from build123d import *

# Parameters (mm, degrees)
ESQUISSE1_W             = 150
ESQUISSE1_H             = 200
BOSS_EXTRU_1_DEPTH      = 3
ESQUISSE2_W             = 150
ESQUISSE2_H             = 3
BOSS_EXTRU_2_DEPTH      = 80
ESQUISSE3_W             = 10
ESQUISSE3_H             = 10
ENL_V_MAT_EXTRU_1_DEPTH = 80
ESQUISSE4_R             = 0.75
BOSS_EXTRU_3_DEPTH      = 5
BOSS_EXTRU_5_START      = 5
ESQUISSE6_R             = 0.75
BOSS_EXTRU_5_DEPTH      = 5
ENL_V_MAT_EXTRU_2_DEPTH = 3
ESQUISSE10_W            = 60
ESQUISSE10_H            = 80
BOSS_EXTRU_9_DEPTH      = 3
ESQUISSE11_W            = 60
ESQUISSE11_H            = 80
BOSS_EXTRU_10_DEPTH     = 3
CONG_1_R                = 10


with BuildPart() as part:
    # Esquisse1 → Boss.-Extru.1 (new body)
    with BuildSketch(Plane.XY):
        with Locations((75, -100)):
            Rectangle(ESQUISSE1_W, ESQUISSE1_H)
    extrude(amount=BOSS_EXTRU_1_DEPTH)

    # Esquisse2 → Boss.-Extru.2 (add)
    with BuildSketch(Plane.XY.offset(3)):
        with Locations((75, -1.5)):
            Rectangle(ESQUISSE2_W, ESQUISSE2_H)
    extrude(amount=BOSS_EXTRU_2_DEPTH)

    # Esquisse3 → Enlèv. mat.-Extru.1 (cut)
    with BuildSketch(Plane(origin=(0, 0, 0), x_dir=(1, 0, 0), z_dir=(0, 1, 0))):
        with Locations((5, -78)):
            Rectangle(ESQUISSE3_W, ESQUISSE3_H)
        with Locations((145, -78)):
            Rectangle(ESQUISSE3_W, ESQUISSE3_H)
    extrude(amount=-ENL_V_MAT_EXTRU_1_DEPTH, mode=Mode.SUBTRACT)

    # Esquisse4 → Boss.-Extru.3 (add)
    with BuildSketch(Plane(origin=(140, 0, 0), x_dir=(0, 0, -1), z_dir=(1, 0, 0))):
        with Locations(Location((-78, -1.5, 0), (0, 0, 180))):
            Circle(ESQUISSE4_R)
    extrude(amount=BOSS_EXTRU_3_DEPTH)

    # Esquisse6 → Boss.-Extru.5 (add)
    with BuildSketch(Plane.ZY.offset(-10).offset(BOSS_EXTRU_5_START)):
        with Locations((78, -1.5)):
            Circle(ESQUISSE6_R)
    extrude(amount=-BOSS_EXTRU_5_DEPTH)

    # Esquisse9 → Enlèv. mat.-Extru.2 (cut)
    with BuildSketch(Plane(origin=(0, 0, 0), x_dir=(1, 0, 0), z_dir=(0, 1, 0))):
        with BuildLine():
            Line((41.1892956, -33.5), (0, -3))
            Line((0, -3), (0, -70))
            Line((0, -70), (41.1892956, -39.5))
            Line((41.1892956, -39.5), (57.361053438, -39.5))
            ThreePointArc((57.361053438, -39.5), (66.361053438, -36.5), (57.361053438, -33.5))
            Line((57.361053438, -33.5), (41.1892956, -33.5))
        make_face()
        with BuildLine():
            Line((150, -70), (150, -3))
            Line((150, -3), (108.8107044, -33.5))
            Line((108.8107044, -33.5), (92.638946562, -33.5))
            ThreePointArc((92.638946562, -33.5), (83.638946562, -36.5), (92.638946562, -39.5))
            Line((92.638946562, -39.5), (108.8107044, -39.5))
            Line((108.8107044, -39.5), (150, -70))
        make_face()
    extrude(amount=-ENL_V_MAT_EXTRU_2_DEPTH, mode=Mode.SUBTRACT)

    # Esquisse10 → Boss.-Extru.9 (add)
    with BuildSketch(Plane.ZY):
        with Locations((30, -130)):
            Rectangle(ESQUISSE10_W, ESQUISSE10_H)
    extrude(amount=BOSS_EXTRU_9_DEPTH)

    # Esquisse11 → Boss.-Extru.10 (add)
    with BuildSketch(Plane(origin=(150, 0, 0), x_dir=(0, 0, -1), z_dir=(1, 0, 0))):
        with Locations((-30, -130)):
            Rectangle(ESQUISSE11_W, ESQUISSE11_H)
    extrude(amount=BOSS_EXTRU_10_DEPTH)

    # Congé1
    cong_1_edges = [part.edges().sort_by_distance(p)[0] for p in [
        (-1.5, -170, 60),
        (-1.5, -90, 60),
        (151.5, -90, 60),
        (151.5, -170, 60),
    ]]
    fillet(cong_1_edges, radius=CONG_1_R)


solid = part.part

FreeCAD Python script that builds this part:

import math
import FreeCAD as App
import Part
import Sketcher
from FreeCAD import Vector
Q = App.Units.Quantity


def edges_at(feature, points):
    """Names of the edges that pass closest to the given points."""
    edges = feature.Shape.Edges
    near = lambda p: min(range(len(edges)), key=lambda i: edges[i].distToShape(Part.Vertex(*p))[0])
    return sorted({f"Edge{near(p) + 1}" for p in points})

doc = App.newDocument("Part")
params = doc.addObject("Spreadsheet::Sheet", "Params")
for row, (alias, value) in enumerate([
    ("sketch1_width", "150 mm"),
    ("sketch1_height", "200 mm"),
    ("pad1_length", "3 mm"),
    ("sketch2_width", "150 mm"),
    ("sketch2_height", "3 mm"),
    ("pad2_length", "80 mm"),
    ("sketch3_width", "10 mm"),
    ("pocket1_length", "80 mm"),
    ("sketch4_diameter", "1.5 mm"),
    ("pad3_length", "5 mm"),
    ("sketch5_diameter", "1.5 mm"),
    ("pad4_length", "5 mm"),
    ("sketch6_radius", "5 mm"),
    ("sketch6_height", "67 mm"),
    ("pocket2_length", "3 mm"),
    ("sketch7_width", "80 mm"),
    ("sketch7_height", "60 mm"),
    ("pad5_length", "3 mm"),
    ("sketch8_width", "80 mm"),
    ("sketch8_height", "60 mm"),
    ("pad6_length", "3 mm"),
    ("fillet_radius", "10 mm"),
], start=1):
    params.set(f"A{row}", alias)
    params.set(f"B{row}", "=" + value)
    params.setAlias(f"B{row}", alias)

body = doc.addObject("PartDesign::Body", "Body")

# Sketch on XY plane
sketch1 = doc.addObject("Sketcher::SketchObject", "Sketch")
body.addObject(sketch1)
sketch1.AttachmentSupport = (doc.XY_Plane, [""])
sketch1.MapMode = "FlatFace"
sketch1.addGeometry(Part.LineSegment(Vector(0, 0, 0), Vector(0, -200, 0)), False)
sketch1.addGeometry(Part.LineSegment(Vector(0, -200, 0), Vector(150, -200, 0)), False)
sketch1.addGeometry(Part.LineSegment(Vector(150, -200, 0), Vector(150, 0, 0)), False)
sketch1.addGeometry(Part.LineSegment(Vector(150, 0, 0), Vector(0, 0, 0)), False)
sketch1.addConstraint(Sketcher.Constraint("Coincident", 0, 2, 1, 1))
sketch1.addConstraint(Sketcher.Constraint("Coincident", 1, 2, 2, 1))
sketch1.addConstraint(Sketcher.Constraint("Coincident", 2, 2, 3, 1))
sketch1.addConstraint(Sketcher.Constraint("Coincident", 3, 2, 0, 1))
sketch1.addConstraint(Sketcher.Constraint("Vertical", 0))
sketch1.addConstraint(Sketcher.Constraint("Horizontal", 1))
sketch1.addConstraint(Sketcher.Constraint("Vertical", 2))
sketch1.addConstraint(Sketcher.Constraint("Horizontal", 3))
sketch1.addConstraint(Sketcher.Constraint("Coincident", 3, 2, -1, 1))
sketch1.addConstraint(Sketcher.Constraint("DistanceX", 1, 1, 1, 2, Q("150 mm")))
sketch1.addConstraint(Sketcher.Constraint("DistanceY", 0, 2, 0, 1, Q("200 mm")))
sketch1.setExpression("Constraints[9]", "Params.sketch1_width")
sketch1.setExpression("Constraints[10]", "Params.sketch1_height")
pad1 = doc.addObject("PartDesign::Pad", "Pad")
body.addObject(pad1)
pad1.Profile = sketch1
pad1.setExpression("Length", "Params.pad1_length")

# Sketch on XY plane
sketch2 = doc.addObject("Sketcher::SketchObject", "Sketch001")
body.addObject(sketch2)
sketch2.AttachmentSupport = (doc.XY_Plane, [""])
sketch2.MapMode = "FlatFace"
sketch2.AttachmentOffset = App.Placement(Vector(0, 0, 3), App.Rotation())
sketch2.addGeometry(Part.LineSegment(Vector(0, 0, 0), Vector(0, -3, 0)), False)
sketch2.addGeometry(Part.LineSegment(Vector(0, -3, 0), Vector(150, -3, 0)), False)
sketch2.addGeometry(Part.LineSegment(Vector(150, -3, 0), Vector(150, 0, 0)), False)
sketch2.addGeometry(Part.LineSegment(Vector(150, 0, 0), Vector(0, 0, 0)), False)
sketch2.addConstraint(Sketcher.Constraint("Coincident", 0, 2, 1, 1))
sketch2.addConstraint(Sketcher.Constraint("Coincident", 1, 2, 2, 1))
sketch2.addConstraint(Sketcher.Constraint("Coincident", 2, 2, 3, 1))
sketch2.addConstraint(Sketcher.Constraint("Coincident", 3, 2, 0, 1))
sketch2.addConstraint(Sketcher.Constraint("Vertical", 0))
sketch2.addConstraint(Sketcher.Constraint("Horizontal", 1))
sketch2.addConstraint(Sketcher.Constraint("Vertical", 2))
sketch2.addConstraint(Sketcher.Constraint("Horizontal", 3))
sketch2.addConstraint(Sketcher.Constraint("Coincident", 3, 2, -1, 1))
sketch2.addConstraint(Sketcher.Constraint("DistanceX", 1, 1, 1, 2, Q("150 mm")))
sketch2.addConstraint(Sketcher.Constraint("DistanceY", 0, 2, 0, 1, Q("3 mm")))
sketch2.setExpression("Constraints[9]", "Params.sketch2_width")
sketch2.setExpression("Constraints[10]", "Params.sketch2_height")
pad2 = doc.addObject("PartDesign::Pad", "Pad001")
body.addObject(pad2)
pad2.Profile = sketch2
pad2.setExpression("Length", "Params.pad2_length")

# Sketch on XZ plane
sketch3 = doc.addObject("Sketcher::SketchObject", "Sketch002")
body.addObject(sketch3)
sketch3.AttachmentSupport = (doc.XZ_Plane, [""])
sketch3.MapMode = "FlatFace"
sketch3.addGeometry(Part.LineSegment(Vector(0, 73, 0), Vector(0, 83, 0)), False)
sketch3.addGeometry(Part.LineSegment(Vector(0, 83, 0), Vector(10, 83, 0)), False)
sketch3.addGeometry(Part.LineSegment(Vector(10, 83, 0), Vector(10, 73, 0)), False)
sketch3.addGeometry(Part.LineSegment(Vector(10, 73, 0), Vector(0, 73, 0)), False)
sketch3.addGeometry(Part.LineSegment(Vector(140, 73, 0), Vector(140, 83, 0)), False)
sketch3.addGeometry(Part.LineSegment(Vector(140, 83, 0), Vector(150, 83, 0)), False)
sketch3.addGeometry(Part.LineSegment(Vector(150, 83, 0), Vector(150, 73, 0)), False)
sketch3.addGeometry(Part.LineSegment(Vector(150, 73, 0), Vector(140, 73, 0)), False)
sketch3.addConstraint(Sketcher.Constraint("Coincident", 0, 2, 1, 1))
sketch3.addConstraint(Sketcher.Constraint("Coincident", 1, 2, 2, 1))
sketch3.addConstraint(Sketcher.Constraint("Coincident", 2, 2, 3, 1))
sketch3.addConstraint(Sketcher.Constraint("Coincident", 3, 2, 0, 1))
sketch3.addConstraint(Sketcher.Constraint("Coincident", 4, 2, 5, 1))
sketch3.addConstraint(Sketcher.Constraint("Coincident", 5, 2, 6, 1))
sketch3.addConstraint(Sketcher.Constraint("Coincident", 6, 2, 7, 1))
sketch3.addConstraint(Sketcher.Constraint("Coincident", 7, 2, 4, 1))
sketch3.addConstraint(Sketcher.Constraint("Vertical", 0))
sketch3.addConstraint(Sketcher.Constraint("Horizontal", 1))
sketch3.addConstraint(Sketcher.Constraint("Vertical", 2))
sketch3.addConstraint(Sketcher.Constraint("Horizontal", 3))
sketch3.addConstraint(Sketcher.Constraint("Vertical", 4))
sketch3.addConstraint(Sketcher.Constraint("Horizontal", 5))
sketch3.addConstraint(Sketcher.Constraint("Vertical", 6))
sketch3.addConstraint(Sketcher.Constraint("Horizontal", 7))
sketch3.addConstraint(Sketcher.Constraint("PointOnObject", 0, 2, -2))
sketch3.addConstraint(Sketcher.Constraint("Horizontal", 1, 2, 4, 2))
sketch3.addConstraint(Sketcher.Constraint("Horizontal", 3, 2, 6, 2))
sketch3.addConstraint(Sketcher.Constraint("Equal", 3, 5))
sketch3.addConstraint(Sketcher.Constraint("Equal", 7, 0))
sketch3.addConstraint(Sketcher.Constraint("DistanceX", 1, 1, 1, 2, Q("10 mm")))
sketch3.addConstraint(Sketcher.Constraint("DistanceY", -1, 1, 0, 2, Q("83 mm")))
sketch3.addConstraint(Sketcher.Constraint("DistanceX", -1, 1, 4, 2, Q("140 mm")))
sketch3.setExpression("Constraints[21]", "Params.sketch3_width")
pocket1 = doc.addObject("PartDesign::Pocket", "Pocket")
body.addObject(pocket1)
pocket1.Profile = sketch3
pocket1.setExpression("Length", "Params.pocket1_length")
pocket1.Reversed = True

# Sketch on YZ plane
sketch4 = doc.addObject("Sketcher::SketchObject", "Sketch003")
body.addObject(sketch4)
sketch4.AttachmentSupport = (doc.YZ_Plane, [""])
sketch4.MapMode = "FlatFace"
sketch4.AttachmentOffset = App.Placement(Vector(0, 0, 140), App.Rotation())
sketch4.addGeometry(Part.Circle(Vector(-1.5, 78, 0), Vector(0, 0, 1), 0.8), False)
sketch4.addConstraint(Sketcher.Constraint("Diameter", 0, Q("1.5 mm")))
sketch4.addConstraint(Sketcher.Constraint("DistanceY", -1, 1, 0, 3, Q("78 mm")))
sketch4.addConstraint(Sketcher.Constraint("DistanceX", 0, 3, -1, 1, Q("1.5 mm")))
sketch4.setExpression("Constraints[0]", "Params.sketch4_diameter")
pad3 = doc.addObject("PartDesign::Pad", "Pad002")
body.addObject(pad3)
pad3.Profile = sketch4
pad3.setExpression("Length", "Params.pad3_length")

# Sketch on YZ plane
sketch5 = doc.addObject("Sketcher::SketchObject", "Sketch004")
body.addObject(sketch5)
sketch5.AttachmentSupport = (doc.YZ_Plane, [""])
sketch5.MapMode = "FlatFace"
sketch5.AttachmentOffset = App.Placement(Vector(0, 0, 5), App.Rotation())
sketch5.addGeometry(Part.Circle(Vector(-1.5, 78, 0), Vector(0, 0, 1), 0.8), False)
sketch5.addConstraint(Sketcher.Constraint("Diameter", 0, Q("1.5 mm")))
sketch5.addConstraint(Sketcher.Constraint("DistanceY", -1, 1, 0, 3, Q("78 mm")))
sketch5.addConstraint(Sketcher.Constraint("DistanceX", 0, 3, -1, 1, Q("1.5 mm")))
sketch5.setExpression("Constraints[0]", "Params.sketch5_diameter")
pad4 = doc.addObject("PartDesign::Pad", "Pad003")
body.addObject(pad4)
pad4.Profile = sketch5
pad4.setExpression("Length", "Params.pad4_length")

# Sketch on XZ plane
sketch6 = doc.addObject("Sketcher::SketchObject", "Sketch005")
body.addObject(sketch6)
sketch6.AttachmentSupport = (doc.XZ_Plane, [""])
sketch6.MapMode = "FlatFace"
sketch6.addGeometry(Part.LineSegment(Vector(41, 34, 0), Vector(0, 3, 0)), False)
sketch6.addGeometry(Part.LineSegment(Vector(0, 3, 0), Vector(0, 70, 0)), False)
sketch6.addGeometry(Part.LineSegment(Vector(0, 70, 0), Vector(41, 40, 0)), False)
sketch6.addGeometry(Part.LineSegment(Vector(41, 40, 0), Vector(57, 40, 0)), False)
sketch6.addGeometry(Part.ArcOfCircle(Part.Circle(Vector(61, 36, 0), Vector(0, 0, 1), 5), math.radians(-143), math.radians(143)), False)
sketch6.addGeometry(Part.LineSegment(Vector(57, 34, 0), Vector(41, 34, 0)), False)
sketch6.addGeometry(Part.LineSegment(Vector(150, 70, 0), Vector(150, 3, 0)), False)
sketch6.addGeometry(Part.LineSegment(Vector(150, 3, 0), Vector(109, 34, 0)), False)
sketch6.addGeometry(Part.LineSegment(Vector(109, 34, 0), Vector(93, 34, 0)), False)
sketch6.addGeometry(Part.ArcOfCircle(Part.Circle(Vector(89, 36, 0), Vector(0, 0, 1), 5), math.radians(37), math.radians(323)), False)
sketch6.addGeometry(Part.LineSegment(Vector(93, 40, 0), Vector(109, 40, 0)), False)
sketch6.addGeometry(Part.LineSegment(Vector(109, 40, 0), Vector(150, 70, 0)), False)
sketch6.addConstraint(Sketcher.Constraint("Coincident", 0, 2, 1, 1))
sketch6.addConstraint(Sketcher.Constraint("Coincident", 1, 2, 2, 1))
sketch6.addConstraint(Sketcher.Constraint("Coincident", 2, 2, 3, 1))
sketch6.addConstraint(Sketcher.Constraint("Coincident", 3, 2, 4, 2))
sketch6.addConstraint(Sketcher.Constraint("Coincident", 4, 1, 5, 1))
sketch6.addConstraint(Sketcher.Constraint("Coincident", 5, 2, 0, 1))
sketch6.addConstraint(Sketcher.Constraint("Coincident", 6, 2, 7, 1))
sketch6.addConstraint(Sketcher.Constraint("Coincident", 7, 2, 8, 1))
sketch6.addConstraint(Sketcher.Constraint("Coincident", 8, 2, 9, 2))
sketch6.addConstraint(Sketcher.Constraint("Coincident", 9, 1, 10, 1))
sketch6.addConstraint(Sketcher.Constraint("Coincident", 10, 2, 11, 1))
sketch6.addConstraint(Sketcher.Constraint("Coincident", 11, 2, 6, 1))
sketch6.addConstraint(Sketcher.Constraint("Vertical", 1))
sketch6.addConstraint(Sketcher.Constraint("Horizontal", 3))
sketch6.addConstraint(Sketcher.Constraint("Horizontal", 5))
sketch6.addConstraint(Sketcher.Constraint("Vertical", 6))
sketch6.addConstraint(Sketcher.Constraint("Horizontal", 8))
sketch6.addConstraint(Sketcher.Constraint("Horizontal", 10))
sketch6.addConstraint(Sketcher.Constraint("Equal", 4, 9))
sketch6.addConstraint(Sketcher.Constraint("PointOnObject", 0, 2, -2))
sketch6.addConstraint(Sketcher.Constraint("Parallel", 2, 7))
sketch6.addConstraint(Sketcher.Constraint("Parallel", 0, 11))
sketch6.addConstraint(Sketcher.Constraint("Horizontal", 4, 3, 9, 3))
sketch6.addConstraint(Sketcher.Constraint("Horizontal", 0, 2, 6, 2))
sketch6.addConstraint(Sketcher.Constraint("Horizontal", 5, 2, 7, 2))
sketch6.addConstraint(Sketcher.Constraint("Horizontal", 3, 2, 9, 1))
sketch6.addConstraint(Sketcher.Constraint("Horizontal", 1, 2, 11, 2))
sketch6.addConstraint(Sketcher.Constraint("Vertical", 3, 2, 4, 1))
sketch6.addConstraint(Sketcher.Constraint("Vertical", 2, 2, 5, 2))
sketch6.addConstraint(Sketcher.Constraint("Vertical", 7, 2, 10, 2))
sketch6.addConstraint(Sketcher.Constraint("Equal", 5, 8))
sketch6.addConstraint(Sketcher.Constraint("Radius", 4, Q("5 mm")))
sketch6.addConstraint(Sketcher.Constraint("DistanceY", 1, 1, 1, 2, Q("67 mm")))
sketch6.addConstraint(Sketcher.Constraint("DistanceY", -1, 1, 0, 2, Q("3 mm")))
sketch6.addConstraint(Sketcher.Constraint("DistanceX", -1, 1, 6, 2, Q("150 mm")))
sketch6.addConstraint(Sketcher.Constraint("DistanceY", 4, 3, 2, 2, Q("3 mm")))
sketch6.addConstraint(Sketcher.Constraint("DistanceX", 3, 1, 3, 2, Q("16.171758 mm")))
sketch6.addConstraint(Sketcher.Constraint("DistanceX", 2, 2, 9, 3, Q("47.449651 mm")))
sketch6.setExpression("Constraints[31]", "Params.sketch6_radius")
sketch6.setExpression("Constraints[32]", "Params.sketch6_height")
pocket2 = doc.addObject("PartDesign::Pocket", "Pocket001")
body.addObject(pocket2)
pocket2.Profile = sketch6
pocket2.setExpression("Length", "Params.pocket2_length")
pocket2.Reversed = True

# Sketch on YZ plane
sketch7 = doc.addObject("Sketcher::SketchObject", "Sketch006")
body.addObject(sketch7)
sketch7.AttachmentSupport = (doc.YZ_Plane, [""])
sketch7.MapMode = "FlatFace"
sketch7.addGeometry(Part.LineSegment(Vector(-90, 0, 0), Vector(-170, 0, 0)), False)
sketch7.addGeometry(Part.LineSegment(Vector(-170, 0, 0), Vector(-170, 60, 0)), False)
sketch7.addGeometry(Part.LineSegment(Vector(-170, 60, 0), Vector(-90, 60, 0)), False)
sketch7.addGeometry(Part.LineSegment(Vector(-90, 60, 0), Vector(-90, 0, 0)), False)
sketch7.addConstraint(Sketcher.Constraint("Coincident", 0, 2, 1, 1))
sketch7.addConstraint(Sketcher.Constraint("Coincident", 1, 2, 2, 1))
sketch7.addConstraint(Sketcher.Constraint("Coincident", 2, 2, 3, 1))
sketch7.addConstraint(Sketcher.Constraint("Coincident", 3, 2, 0, 1))
sketch7.addConstraint(Sketcher.Constraint("Horizontal", 0))
sketch7.addConstraint(Sketcher.Constraint("Vertical", 1))
sketch7.addConstraint(Sketcher.Constraint("Horizontal", 2))
sketch7.addConstraint(Sketcher.Constraint("Vertical", 3))
sketch7.addConstraint(Sketcher.Constraint("PointOnObject", 0, 2, -1))
sketch7.addConstraint(Sketcher.Constraint("DistanceX", 0, 2, 0, 1, Q("80 mm")))
sketch7.addConstraint(Sketcher.Constraint("DistanceY", 1, 1, 1, 2, Q("60 mm")))
sketch7.addConstraint(Sketcher.Constraint("DistanceX", 0, 2, -1, 1, Q("170 mm")))
sketch7.setExpression("Constraints[9]", "Params.sketch7_width")
sketch7.setExpression("Constraints[10]", "Params.sketch7_height")
pad5 = doc.addObject("PartDesign::Pad", "Pad004")
body.addObject(pad5)
pad5.Profile = sketch7
pad5.setExpression("Length", "Params.pad5_length")
pad5.Reversed = True

# Sketch on YZ plane
sketch8 = doc.addObject("Sketcher::SketchObject", "Sketch007")
body.addObject(sketch8)
sketch8.AttachmentSupport = (doc.YZ_Plane, [""])
sketch8.MapMode = "FlatFace"
sketch8.AttachmentOffset = App.Placement(Vector(0, 0, 150), App.Rotation())
sketch8.addGeometry(Part.LineSegment(Vector(-90, 60, 0), Vector(-170, 60, 0)), False)
sketch8.addGeometry(Part.LineSegment(Vector(-170, 60, 0), Vector(-170, 0, 0)), False)
sketch8.addGeometry(Part.LineSegment(Vector(-170, 0, 0), Vector(-90, 0, 0)), False)
sketch8.addGeometry(Part.LineSegment(Vector(-90, 0, 0), Vector(-90, 60, 0)), False)
sketch8.addConstraint(Sketcher.Constraint("Coincident", 0, 2, 1, 1))
sketch8.addConstraint(Sketcher.Constraint("Coincident", 1, 2, 2, 1))
sketch8.addConstraint(Sketcher.Constraint("Coincident", 2, 2, 3, 1))
sketch8.addConstraint(Sketcher.Constraint("Coincident", 3, 2, 0, 1))
sketch8.addConstraint(Sketcher.Constraint("Horizontal", 0))
sketch8.addConstraint(Sketcher.Constraint("Vertical", 1))
sketch8.addConstraint(Sketcher.Constraint("Horizontal", 2))
sketch8.addConstraint(Sketcher.Constraint("Vertical", 3))
sketch8.addConstraint(Sketcher.Constraint("PointOnObject", 1, 2, -1))
sketch8.addConstraint(Sketcher.Constraint("DistanceX", 0, 2, 0, 1, Q("80 mm")))
sketch8.addConstraint(Sketcher.Constraint("DistanceY", 1, 2, 1, 1, Q("60 mm")))
sketch8.addConstraint(Sketcher.Constraint("DistanceX", 0, 2, -1, 1, Q("170 mm")))
sketch8.setExpression("Constraints[9]", "Params.sketch8_width")
sketch8.setExpression("Constraints[10]", "Params.sketch8_height")
pad6 = doc.addObject("PartDesign::Pad", "Pad005")
body.addObject(pad6)
pad6.Profile = sketch8
pad6.setExpression("Length", "Params.pad6_length")
doc.recompute()

fillet = doc.addObject("PartDesign::Fillet", "Fillet")
body.addObject(fillet)
fillet.Base = (pad6, edges_at(pad6, [
    (-1.5, -170, 60),
    (-1.5, -90, 60),
    (151.5, -90, 60),
    (151.5, -170, 60),
]))
fillet.setExpression("Radius", "Params.fillet_radius")

doc.recompute()
